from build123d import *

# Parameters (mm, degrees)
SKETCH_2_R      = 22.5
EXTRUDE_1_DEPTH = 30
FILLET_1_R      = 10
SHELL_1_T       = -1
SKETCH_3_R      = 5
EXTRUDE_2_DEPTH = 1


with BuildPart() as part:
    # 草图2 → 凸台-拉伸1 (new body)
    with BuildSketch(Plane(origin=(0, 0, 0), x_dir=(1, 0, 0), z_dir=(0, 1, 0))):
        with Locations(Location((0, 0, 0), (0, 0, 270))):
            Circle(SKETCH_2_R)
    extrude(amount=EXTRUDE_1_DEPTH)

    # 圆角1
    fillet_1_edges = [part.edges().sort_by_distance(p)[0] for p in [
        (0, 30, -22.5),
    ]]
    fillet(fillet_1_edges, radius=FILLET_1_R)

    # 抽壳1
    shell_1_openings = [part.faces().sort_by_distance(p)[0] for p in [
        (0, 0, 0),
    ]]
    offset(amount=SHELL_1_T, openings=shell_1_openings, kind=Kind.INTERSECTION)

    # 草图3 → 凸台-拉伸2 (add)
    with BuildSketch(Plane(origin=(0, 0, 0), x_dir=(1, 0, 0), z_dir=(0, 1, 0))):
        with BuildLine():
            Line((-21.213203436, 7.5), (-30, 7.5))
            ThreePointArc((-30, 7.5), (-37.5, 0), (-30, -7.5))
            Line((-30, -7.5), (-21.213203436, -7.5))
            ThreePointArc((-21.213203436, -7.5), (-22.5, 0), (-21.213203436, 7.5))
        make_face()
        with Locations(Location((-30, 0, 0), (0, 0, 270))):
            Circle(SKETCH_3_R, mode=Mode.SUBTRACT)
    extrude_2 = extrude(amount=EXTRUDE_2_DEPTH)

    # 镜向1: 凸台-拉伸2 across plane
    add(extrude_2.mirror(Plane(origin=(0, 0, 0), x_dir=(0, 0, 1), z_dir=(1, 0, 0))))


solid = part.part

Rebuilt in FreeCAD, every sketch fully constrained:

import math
import FreeCAD as App
import Part
import Sketcher

V = App.Vector


def edges_at(feature, points):
    """Names of the edges that pass closest to the given points."""
    edges = feature.Shape.Edges
    near = lambda p: min(range(len(edges)), key=lambda i: edges[i].distToShape(Part.Vertex(*p))[0])
    return sorted({f"Edge{near(p) + 1}" for p in points})


def faces_at(feature, points):
    """Names of the faces that lie closest to the given points."""
    faces = feature.Shape.Faces
    near = lambda p: min(range(len(faces)), key=lambda i: faces[i].distToShape(Part.Vertex(*p))[0])
    return sorted({f"Face{near(p) + 1}" for p in points})

doc = App.newDocument("Part")
body = doc.addObject("PartDesign::Body", "Body")

# Sketch on XZ plane
sketch1 = body.newObject("Sketcher::SketchObject", "Sketch")
sketch1.AttachmentSupport = (doc.getObject("XZ_Plane"), [""])
sketch1.MapMode = "FlatFace"
sketch1.addGeometry(Part.Circle(V(0, 0, 0), V(0, 0, 1), 22.5), False)
sketch1.addConstraint(Sketcher.Constraint("Coincident", 0, 3, -1, 1))
sketch1.addConstraint(Sketcher.Constraint("Diameter", 0, 45.0))
pad1 = body.newObject("PartDesign::Pad", "Pad")
pad1.Profile = sketch1
pad1.Length = 30
pad1.Reversed = True
doc.recompute()

fillet = body.newObject("PartDesign::Fillet", "Fillet")
fillet.Base = (pad1, edges_at(pad1, [(0, 30, -22.5)]))
fillet.Radius = 10
doc.recompute()

thickness = body.newObject("PartDesign::Thickness", "Thickness")
thickness.Base = (fillet, faces_at(fillet, [(0, 0, 0)]))
thickness.Value = 1
thickness.Reversed = True
thickness.Join = "Intersection"

# Sketch on XZ plane
sketch2 = body.newObject("Sketcher::SketchObject", "Sketch001")
sketch2.AttachmentSupport = (doc.getObject("XZ_Plane"), [""])
sketch2.MapMode = "FlatFace"
sketch2.addGeometry(Part.LineSegment(V(-21.213203, -7.5, 0), V(-30, -7.5, 0)), False)
sketch2.addGeometry(Part.ArcOfCircle(Part.Circle(V(-30, 0, 0), V(0, 0, 1), 7.5), math.radians(90), math.radians(270)), False)
sketch2.addGeometry(Part.LineSegment(V(-30, 7.5, 0), V(-21.213203, 7.5, 0)), False)
sketch2.addGeometry(Part.ArcOfCircle(Part.Circle(V(0, 0, 0), V(0, 0, 1), 22.5), math.radians(160.528779), math.radians(199.471221)), False)
sketch2.addGeometry(Part.Circle(V(-30, 0, 0), V(0, 0, 1), 5), False)
sketch2.addConstraint(Sketcher.Constraint("Tangent", 0, 2, 1, 2))
sketch2.addConstraint(Sketcher.Constraint("Tangent", 1, 1, 2, 1))
sketch2.addConstraint(Sketcher.Constraint("Coincident", 2, 2, 3, 1))
sketch2.addConstraint(Sketcher.Constraint("Coincident", 3, 2, 0, 1))
sketch2.addConstraint(Sketcher.Constraint("Horizontal", 0))
sketch2.addConstraint(Sketcher.Constraint("Horizontal", 2))
sketch2.addConstraint(Sketcher.Constraint("Coincident", 3, 3, -1, 1))
sketch2.addConstraint(Sketcher.Constraint("Coincident", 4, 3, 1, 3))
sketch2.addConstraint(Sketcher.Constraint("PointOnObject", 1, 3, -1))
sketch2.addConstraint(Sketcher.Constraint("Diameter", 4, 10.0))
sketch2.addConstraint(Sketcher.Constraint("Radius", 1, 7.5))
sketch2.addConstraint(Sketcher.Constraint("Radius", 3, 22.5))
sketch2.addConstraint(Sketcher.Constraint("DistanceX", 1, 3, -1, 1, 30.0))
pad2 = body.newObject("PartDesign::Pad", "Pad001")
pad2.Profile = sketch2
pad2.Length = 1
pad2.Reversed = True
doc.recompute()

mirrored = body.newObject("PartDesign::Mirrored", "Mirrored")
mirrored.Originals = [pad2]
mirrored.MirrorPlane = (doc.getObject("YZ_Plane"), [""])
body.Tip = mirrored

doc.recompute()
